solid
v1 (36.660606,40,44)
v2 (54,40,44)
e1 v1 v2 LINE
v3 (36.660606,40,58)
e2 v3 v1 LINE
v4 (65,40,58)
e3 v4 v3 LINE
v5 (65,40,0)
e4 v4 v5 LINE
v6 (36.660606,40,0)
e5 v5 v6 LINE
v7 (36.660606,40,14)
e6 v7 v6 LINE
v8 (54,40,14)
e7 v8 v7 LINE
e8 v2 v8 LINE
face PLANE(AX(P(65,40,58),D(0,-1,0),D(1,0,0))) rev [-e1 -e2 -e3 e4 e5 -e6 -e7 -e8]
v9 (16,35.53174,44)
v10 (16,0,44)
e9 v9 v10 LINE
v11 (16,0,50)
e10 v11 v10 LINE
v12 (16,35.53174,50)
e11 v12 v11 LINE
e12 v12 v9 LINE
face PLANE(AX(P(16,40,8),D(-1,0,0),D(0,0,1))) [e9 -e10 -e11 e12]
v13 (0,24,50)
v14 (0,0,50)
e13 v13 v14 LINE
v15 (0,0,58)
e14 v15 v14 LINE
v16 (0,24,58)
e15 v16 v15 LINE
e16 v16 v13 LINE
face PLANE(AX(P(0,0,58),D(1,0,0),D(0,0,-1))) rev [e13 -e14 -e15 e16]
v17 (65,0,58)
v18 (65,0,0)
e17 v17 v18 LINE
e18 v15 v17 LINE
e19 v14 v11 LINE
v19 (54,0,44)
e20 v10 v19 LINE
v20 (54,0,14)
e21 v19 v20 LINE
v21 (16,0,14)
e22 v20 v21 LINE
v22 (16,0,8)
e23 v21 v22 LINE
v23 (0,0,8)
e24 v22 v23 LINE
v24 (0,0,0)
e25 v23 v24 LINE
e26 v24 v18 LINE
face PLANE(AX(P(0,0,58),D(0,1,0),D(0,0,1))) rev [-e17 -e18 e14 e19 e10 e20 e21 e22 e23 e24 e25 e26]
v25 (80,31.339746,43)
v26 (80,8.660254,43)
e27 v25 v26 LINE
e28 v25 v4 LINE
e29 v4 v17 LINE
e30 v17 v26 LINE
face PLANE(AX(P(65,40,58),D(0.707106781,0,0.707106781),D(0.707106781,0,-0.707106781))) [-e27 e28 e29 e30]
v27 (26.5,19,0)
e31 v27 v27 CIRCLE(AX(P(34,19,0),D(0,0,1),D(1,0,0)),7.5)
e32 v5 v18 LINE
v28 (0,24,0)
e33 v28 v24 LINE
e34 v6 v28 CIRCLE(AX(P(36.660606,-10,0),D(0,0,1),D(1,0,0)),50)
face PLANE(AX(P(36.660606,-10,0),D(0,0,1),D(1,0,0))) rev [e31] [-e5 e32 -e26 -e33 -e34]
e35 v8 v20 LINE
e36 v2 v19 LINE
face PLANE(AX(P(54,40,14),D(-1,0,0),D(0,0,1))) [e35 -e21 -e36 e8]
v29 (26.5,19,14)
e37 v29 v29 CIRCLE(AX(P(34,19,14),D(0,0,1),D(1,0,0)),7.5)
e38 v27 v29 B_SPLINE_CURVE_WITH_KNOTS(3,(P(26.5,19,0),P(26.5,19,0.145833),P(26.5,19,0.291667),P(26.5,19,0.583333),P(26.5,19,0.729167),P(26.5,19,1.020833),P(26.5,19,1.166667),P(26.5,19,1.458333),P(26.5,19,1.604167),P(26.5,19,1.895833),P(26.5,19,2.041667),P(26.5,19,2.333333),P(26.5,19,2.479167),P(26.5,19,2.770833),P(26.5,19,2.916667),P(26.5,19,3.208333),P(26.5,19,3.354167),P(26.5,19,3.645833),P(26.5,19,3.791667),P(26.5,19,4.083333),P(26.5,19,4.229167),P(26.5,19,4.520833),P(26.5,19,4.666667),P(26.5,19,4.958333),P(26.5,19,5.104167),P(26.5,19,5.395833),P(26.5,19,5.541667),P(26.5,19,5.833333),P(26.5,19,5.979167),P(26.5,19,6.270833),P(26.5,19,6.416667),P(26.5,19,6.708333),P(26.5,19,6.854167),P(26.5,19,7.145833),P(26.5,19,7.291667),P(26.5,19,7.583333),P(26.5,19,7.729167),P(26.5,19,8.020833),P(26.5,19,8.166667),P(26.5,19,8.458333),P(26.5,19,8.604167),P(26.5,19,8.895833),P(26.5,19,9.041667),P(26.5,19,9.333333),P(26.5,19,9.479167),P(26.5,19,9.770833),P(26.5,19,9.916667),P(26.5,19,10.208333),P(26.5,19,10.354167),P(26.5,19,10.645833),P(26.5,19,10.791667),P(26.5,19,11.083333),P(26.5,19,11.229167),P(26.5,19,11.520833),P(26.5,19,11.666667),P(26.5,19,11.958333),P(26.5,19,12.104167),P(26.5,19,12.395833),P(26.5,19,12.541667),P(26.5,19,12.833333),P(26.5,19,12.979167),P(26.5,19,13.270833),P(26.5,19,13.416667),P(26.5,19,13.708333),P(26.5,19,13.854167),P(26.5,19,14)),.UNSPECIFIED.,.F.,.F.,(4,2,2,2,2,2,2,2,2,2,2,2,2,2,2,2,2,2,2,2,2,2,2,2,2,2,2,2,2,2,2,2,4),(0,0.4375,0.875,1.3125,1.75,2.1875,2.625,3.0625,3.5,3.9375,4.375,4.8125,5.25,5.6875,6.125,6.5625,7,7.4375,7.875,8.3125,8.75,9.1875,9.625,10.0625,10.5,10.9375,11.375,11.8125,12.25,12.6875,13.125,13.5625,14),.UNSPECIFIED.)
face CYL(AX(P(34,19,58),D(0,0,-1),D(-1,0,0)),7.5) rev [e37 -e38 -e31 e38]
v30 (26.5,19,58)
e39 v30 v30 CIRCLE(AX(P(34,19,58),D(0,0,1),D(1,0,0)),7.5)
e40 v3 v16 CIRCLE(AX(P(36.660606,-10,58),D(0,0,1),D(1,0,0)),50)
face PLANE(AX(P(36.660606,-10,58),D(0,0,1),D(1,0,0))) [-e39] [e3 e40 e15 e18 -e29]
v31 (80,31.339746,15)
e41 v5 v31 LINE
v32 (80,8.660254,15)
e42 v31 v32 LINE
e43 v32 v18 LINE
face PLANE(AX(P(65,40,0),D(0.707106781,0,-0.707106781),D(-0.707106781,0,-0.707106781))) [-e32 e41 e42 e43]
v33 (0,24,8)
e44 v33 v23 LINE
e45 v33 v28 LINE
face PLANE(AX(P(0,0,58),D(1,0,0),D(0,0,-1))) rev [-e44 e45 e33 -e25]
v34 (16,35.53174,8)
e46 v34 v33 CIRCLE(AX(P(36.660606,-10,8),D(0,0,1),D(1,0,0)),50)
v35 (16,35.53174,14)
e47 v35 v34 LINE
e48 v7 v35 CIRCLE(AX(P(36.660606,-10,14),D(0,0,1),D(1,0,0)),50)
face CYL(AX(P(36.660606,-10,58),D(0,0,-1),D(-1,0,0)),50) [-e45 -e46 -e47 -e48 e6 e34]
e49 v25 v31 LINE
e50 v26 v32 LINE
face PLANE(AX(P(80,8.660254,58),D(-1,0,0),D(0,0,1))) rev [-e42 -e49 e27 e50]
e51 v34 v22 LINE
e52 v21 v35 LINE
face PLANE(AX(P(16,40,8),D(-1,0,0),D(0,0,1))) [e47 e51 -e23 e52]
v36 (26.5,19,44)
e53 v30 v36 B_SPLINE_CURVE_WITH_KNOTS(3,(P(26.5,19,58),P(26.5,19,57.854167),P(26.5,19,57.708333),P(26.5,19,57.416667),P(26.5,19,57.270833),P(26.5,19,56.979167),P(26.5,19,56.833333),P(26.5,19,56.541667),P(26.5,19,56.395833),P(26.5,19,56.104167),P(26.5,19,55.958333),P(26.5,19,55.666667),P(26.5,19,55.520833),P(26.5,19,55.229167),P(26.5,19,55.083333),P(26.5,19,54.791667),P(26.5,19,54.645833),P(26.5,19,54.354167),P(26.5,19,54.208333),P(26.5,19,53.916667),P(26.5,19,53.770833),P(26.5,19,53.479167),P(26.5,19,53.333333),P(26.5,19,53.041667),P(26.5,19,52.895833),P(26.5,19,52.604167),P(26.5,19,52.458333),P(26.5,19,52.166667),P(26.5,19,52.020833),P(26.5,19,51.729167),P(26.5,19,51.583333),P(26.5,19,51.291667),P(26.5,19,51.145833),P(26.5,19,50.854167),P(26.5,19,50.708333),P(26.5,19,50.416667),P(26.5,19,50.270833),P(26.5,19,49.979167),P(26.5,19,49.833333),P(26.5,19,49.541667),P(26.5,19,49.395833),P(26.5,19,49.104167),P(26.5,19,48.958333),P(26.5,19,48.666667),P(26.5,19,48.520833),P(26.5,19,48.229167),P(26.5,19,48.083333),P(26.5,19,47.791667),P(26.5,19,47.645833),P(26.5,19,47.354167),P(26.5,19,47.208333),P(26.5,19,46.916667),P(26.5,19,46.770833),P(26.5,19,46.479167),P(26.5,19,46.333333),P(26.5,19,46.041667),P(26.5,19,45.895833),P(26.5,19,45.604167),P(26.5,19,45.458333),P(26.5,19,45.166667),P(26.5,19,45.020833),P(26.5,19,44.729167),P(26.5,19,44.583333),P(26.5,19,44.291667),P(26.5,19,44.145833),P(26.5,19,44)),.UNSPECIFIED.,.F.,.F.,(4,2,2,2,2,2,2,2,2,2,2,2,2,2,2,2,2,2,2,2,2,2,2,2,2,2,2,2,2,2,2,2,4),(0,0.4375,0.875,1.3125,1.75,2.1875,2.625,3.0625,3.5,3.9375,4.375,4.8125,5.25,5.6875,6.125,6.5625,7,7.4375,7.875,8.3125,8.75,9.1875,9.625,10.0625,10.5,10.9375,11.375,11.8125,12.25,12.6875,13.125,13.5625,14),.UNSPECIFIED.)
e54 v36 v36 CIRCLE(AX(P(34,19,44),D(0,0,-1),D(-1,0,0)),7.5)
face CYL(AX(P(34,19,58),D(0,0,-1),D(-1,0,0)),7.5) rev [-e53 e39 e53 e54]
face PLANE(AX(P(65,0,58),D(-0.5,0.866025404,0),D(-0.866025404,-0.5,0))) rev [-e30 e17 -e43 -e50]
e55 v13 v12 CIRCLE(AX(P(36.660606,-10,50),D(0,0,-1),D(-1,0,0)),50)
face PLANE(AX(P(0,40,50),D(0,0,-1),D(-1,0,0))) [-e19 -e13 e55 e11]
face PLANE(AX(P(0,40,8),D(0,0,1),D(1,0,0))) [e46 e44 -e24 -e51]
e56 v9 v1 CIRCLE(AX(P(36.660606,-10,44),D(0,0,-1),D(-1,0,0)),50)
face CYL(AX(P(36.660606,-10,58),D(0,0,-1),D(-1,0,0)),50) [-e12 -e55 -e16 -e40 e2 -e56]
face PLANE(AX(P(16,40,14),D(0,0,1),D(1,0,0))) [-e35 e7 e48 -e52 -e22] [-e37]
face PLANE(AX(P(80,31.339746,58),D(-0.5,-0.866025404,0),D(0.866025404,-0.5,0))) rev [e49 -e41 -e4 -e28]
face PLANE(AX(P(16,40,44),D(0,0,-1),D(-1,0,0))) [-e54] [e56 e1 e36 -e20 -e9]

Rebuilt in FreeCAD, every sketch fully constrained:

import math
import FreeCAD as App
import Part
import Sketcher
from FreeCAD import Vector
Q = App.Units.Quantity


def add_polygon(sketch, points):
    """Adds a closed chain of lines whose ends are joined by coincident constraints."""
    first, n = sketch.GeometryCount, len(points)
    for a, b in zip(points, points[1:] + points[:1]):
        sketch.addGeometry(Part.LineSegment(App.Vector(*a, 0), App.Vector(*b, 0)), False)
    for i in range(n):
        sketch.addConstraint(Sketcher.Constraint("Coincident", first + i, 2, first + (i + 1) % n, 1))

doc = App.newDocument("Part")
params = doc.addObject("Spreadsheet::Sheet", "Params")
for row, (alias, value) in enumerate([
    ("sketch1_diameter", "15 mm"),
    ("sketch1_radius", "50 mm"),
    ("sketch1_width", "65 mm"),
    ("sketch1_height", "24 mm"),
    ("pad1_length", "58 mm"),
    ("sketch2_width", "16 mm"),
    ("sketch2_height", "42 mm"),
    ("sketch3_width", "38 mm"),
    ("sketch3_height", "30 mm"),
    ("sketch4_width", "15 mm"),
], start=1):
    params.set(f"A{row}", alias)
    params.set(f"B{row}", "=" + value)
    params.setAlias(f"B{row}", alias)

body = doc.addObject("PartDesign::Body", "Body")

# Sketch on XY plane
sketch1 = body.newObject("Sketcher::SketchObject", "Sketch")
sketch1.AttachmentSupport = (doc.getObject("XY_Plane"), [""])
sketch1.MapMode = "FlatFace"
sketch1.addGeometry([
    Part.LineSegment(Vector(0, 0, 0), Vector(65, 0, 0)),  # 0
    Part.LineSegment(Vector(65, 0, 0), Vector(80, 9, 0)),  # 1
    Part.LineSegment(Vector(80, 9, 0), Vector(80, 31, 0)),  # 2
    Part.LineSegment(Vector(80, 31, 0), Vector(65, 40, 0)),  # 3
    Part.LineSegment(Vector(65, 40, 0), Vector(37, 40, 0)),  # 4
    Part.ArcOfCircle(Part.Circle(Vector(37, -10, 0), Vector(0, 0, 1), 50), math.radians(90), math.radians(137)),  # 5
    Part.LineSegment(Vector(0, 24, 0), Vector(0, 0, 0)),  # 6
    Part.Circle(Vector(34, 19, 0), Vector(0, 0, 1), 8),  # 7
], False)
sketch1.addConstraint([
    Sketcher.Constraint("Coincident", 0, 2, 1, 1),
    Sketcher.Constraint("Coincident", 1, 2, 2, 1),
    Sketcher.Constraint("Coincident", 2, 2, 3, 1),
    Sketcher.Constraint("Coincident", 3, 2, 4, 1),
    Sketcher.Constraint("Tangent", 4, 2, 5, 1),
    Sketcher.Constraint("Coincident", 5, 2, 6, 1),
    Sketcher.Constraint("Coincident", 6, 2, 0, 1),
    Sketcher.Constraint("Horizontal", 0),
    Sketcher.Constraint("Vertical", 2),
    Sketcher.Constraint("Horizontal", 4),
    Sketcher.Constraint("Vertical", 6),
    Sketcher.Constraint("Coincident", 6, 2, -1, 1),
    Sketcher.Constraint("Vertical", 0, 2, 3, 2),
    Sketcher.Constraint("Equal", 1, 3),
    Sketcher.Constraint("Diameter", 7, Q("15 mm")),
    Sketcher.Constraint("Radius", 5, Q("50 mm")),
    Sketcher.Constraint("DistanceX", 0, 1, 0, 2, Q("65 mm")),
    Sketcher.Constraint("DistanceY", 6, 2, 6, 1, Q("24 mm")),
    Sketcher.Constraint("Angle", 1, Q("30 deg")),
    Sketcher.Constraint("DistanceY", 5, 3, -1, 1, Q("10 mm")),
    Sketcher.Constraint("DistanceX", -1, 1, 7, 3, Q("34 mm")),
    Sketcher.Constraint("DistanceY", -1, 1, 7, 3, Q("19 mm")),
    Sketcher.Constraint("DistanceX", -1, 1, 1, 2, Q("80 mm")),
])
sketch1.setExpression("Constraints[14]", "Params.sketch1_diameter")
sketch1.setExpression("Constraints[15]", "Params.sketch1_radius")
sketch1.setExpression("Constraints[16]", "Params.sketch1_width")
sketch1.setExpression("Constraints[17]", "Params.sketch1_height")
pad1 = body.newObject("PartDesign::Pad", "Pad")
pad1.Profile = sketch1
pad1.setExpression("Length", "Params.pad1_length")

# Sketch on XZ plane
sketch2 = body.newObject("Sketcher::SketchObject", "Sketch001")
sketch2.AttachmentSupport = (doc.getObject("XZ_Plane"), [""])
sketch2.MapMode = "FlatFace"
add_polygon(sketch2, [(0, 8), (0, 50), (16, 50), (16, 8)])  # lines 0-3
sketch2.addConstraint([
    Sketcher.Constraint("Vertical", 0),
    Sketcher.Constraint("Horizontal", 1),
    Sketcher.Constraint("Vertical", 2),
    Sketcher.Constraint("Horizontal", 3),
    Sketcher.Constraint("PointOnObject", 0, 2, -2),
    Sketcher.Constraint("DistanceX", 1, 1, 1, 2, Q("16 mm")),
    Sketcher.Constraint("DistanceY", 0, 1, 0, 2, Q("42 mm")),
    Sketcher.Constraint("DistanceY", -1, 1, 0, 2, Q("50 mm")),
])
sketch2.setExpression("Constraints[9]", "Params.sketch2_width")
sketch2.setExpression("Constraints[10]", "Params.sketch2_height")
pocket1 = body.newObject("PartDesign::Pocket", "Pocket")
pocket1.Profile = sketch2
pocket1.Type = "ThroughAll"

# Sketch on XZ plane
sketch3 = body.newObject("Sketcher::SketchObject", "Sketch002")
sketch3.AttachmentSupport = (doc.getObject("XZ_Plane"), [""])
sketch3.MapMode = "FlatFace"
add_polygon(sketch3, [(16, 14), (16, 44), (54, 44), (54, 14)])  # lines 0-3
sketch3.addConstraint([
    Sketcher.Constraint("Vertical", 0),
    Sketcher.Constraint("Horizontal", 1),
    Sketcher.Constraint("Vertical", 2),
    Sketcher.Constraint("Horizontal", 3),
    Sketcher.Constraint("DistanceX", 1, 1, 1, 2, Q("38 mm")),
    Sketcher.Constraint("DistanceY", 0, 1, 0, 2, Q("30 mm")),
    Sketcher.Constraint("DistanceX", -1, 1, 0, 2, Q("16 mm")),
    Sketcher.Constraint("DistanceY", -1, 1, 0, 2, Q("44 mm")),
])
sketch3.setExpression("Constraints[8]", "Params.sketch3_width")
sketch3.setExpression("Constraints[9]", "Params.sketch3_height")
pocket2 = body.newObject("PartDesign::Pocket", "Pocket001")
pocket2.Profile = sketch3
pocket2.Type = "ThroughAll"

# Sketch on XZ plane
sketch4 = body.newObject("Sketcher::SketchObject", "Sketch003")
sketch4.AttachmentSupport = (doc.getObject("XZ_Plane"), [""])
sketch4.MapMode = "FlatFace"
add_polygon(sketch4, [(65, 0), (80, 15), (80, 0)])  # lines 0-2
add_polygon(sketch4, [(80, 43), (65, 58), (80, 58)])  # lines 3-5
sketch4.addConstraint([
    Sketcher.Constraint("Vertical", 1),
    Sketcher.Constraint("Horizontal", 2),
    Sketcher.Constraint("Horizontal", 4),
    Sketcher.Constraint("Vertical", 5),
    Sketcher.Constraint("PointOnObject", 1, 2, -1),
    Sketcher.Constraint("Perpendicular", 0, 3),
    Sketcher.Constraint("Vertical", 2, 2, 3, 2),
    Sketcher.Constraint("Vertical", 1, 2, 4, 2),
    Sketcher.Constraint("Equal", 4, 1),
    Sketcher.Constraint("DistanceX", 2, 2, 2, 1, Q("15 mm")),
    Sketcher.Constraint("DistanceX", -1, 1, 0, 2, Q("80 mm")),
    Sketcher.Constraint("DistanceY", -1, 1, 3, 2, Q("58 mm")),
])
sketch4.setExpression("Constraints[15]", "Params.sketch4_width")
pocket3 = body.newObject("PartDesign::Pocket", "Pocket002")
pocket3.Profile = sketch4
pocket3.Type = "ThroughAll"

doc.recompute()
